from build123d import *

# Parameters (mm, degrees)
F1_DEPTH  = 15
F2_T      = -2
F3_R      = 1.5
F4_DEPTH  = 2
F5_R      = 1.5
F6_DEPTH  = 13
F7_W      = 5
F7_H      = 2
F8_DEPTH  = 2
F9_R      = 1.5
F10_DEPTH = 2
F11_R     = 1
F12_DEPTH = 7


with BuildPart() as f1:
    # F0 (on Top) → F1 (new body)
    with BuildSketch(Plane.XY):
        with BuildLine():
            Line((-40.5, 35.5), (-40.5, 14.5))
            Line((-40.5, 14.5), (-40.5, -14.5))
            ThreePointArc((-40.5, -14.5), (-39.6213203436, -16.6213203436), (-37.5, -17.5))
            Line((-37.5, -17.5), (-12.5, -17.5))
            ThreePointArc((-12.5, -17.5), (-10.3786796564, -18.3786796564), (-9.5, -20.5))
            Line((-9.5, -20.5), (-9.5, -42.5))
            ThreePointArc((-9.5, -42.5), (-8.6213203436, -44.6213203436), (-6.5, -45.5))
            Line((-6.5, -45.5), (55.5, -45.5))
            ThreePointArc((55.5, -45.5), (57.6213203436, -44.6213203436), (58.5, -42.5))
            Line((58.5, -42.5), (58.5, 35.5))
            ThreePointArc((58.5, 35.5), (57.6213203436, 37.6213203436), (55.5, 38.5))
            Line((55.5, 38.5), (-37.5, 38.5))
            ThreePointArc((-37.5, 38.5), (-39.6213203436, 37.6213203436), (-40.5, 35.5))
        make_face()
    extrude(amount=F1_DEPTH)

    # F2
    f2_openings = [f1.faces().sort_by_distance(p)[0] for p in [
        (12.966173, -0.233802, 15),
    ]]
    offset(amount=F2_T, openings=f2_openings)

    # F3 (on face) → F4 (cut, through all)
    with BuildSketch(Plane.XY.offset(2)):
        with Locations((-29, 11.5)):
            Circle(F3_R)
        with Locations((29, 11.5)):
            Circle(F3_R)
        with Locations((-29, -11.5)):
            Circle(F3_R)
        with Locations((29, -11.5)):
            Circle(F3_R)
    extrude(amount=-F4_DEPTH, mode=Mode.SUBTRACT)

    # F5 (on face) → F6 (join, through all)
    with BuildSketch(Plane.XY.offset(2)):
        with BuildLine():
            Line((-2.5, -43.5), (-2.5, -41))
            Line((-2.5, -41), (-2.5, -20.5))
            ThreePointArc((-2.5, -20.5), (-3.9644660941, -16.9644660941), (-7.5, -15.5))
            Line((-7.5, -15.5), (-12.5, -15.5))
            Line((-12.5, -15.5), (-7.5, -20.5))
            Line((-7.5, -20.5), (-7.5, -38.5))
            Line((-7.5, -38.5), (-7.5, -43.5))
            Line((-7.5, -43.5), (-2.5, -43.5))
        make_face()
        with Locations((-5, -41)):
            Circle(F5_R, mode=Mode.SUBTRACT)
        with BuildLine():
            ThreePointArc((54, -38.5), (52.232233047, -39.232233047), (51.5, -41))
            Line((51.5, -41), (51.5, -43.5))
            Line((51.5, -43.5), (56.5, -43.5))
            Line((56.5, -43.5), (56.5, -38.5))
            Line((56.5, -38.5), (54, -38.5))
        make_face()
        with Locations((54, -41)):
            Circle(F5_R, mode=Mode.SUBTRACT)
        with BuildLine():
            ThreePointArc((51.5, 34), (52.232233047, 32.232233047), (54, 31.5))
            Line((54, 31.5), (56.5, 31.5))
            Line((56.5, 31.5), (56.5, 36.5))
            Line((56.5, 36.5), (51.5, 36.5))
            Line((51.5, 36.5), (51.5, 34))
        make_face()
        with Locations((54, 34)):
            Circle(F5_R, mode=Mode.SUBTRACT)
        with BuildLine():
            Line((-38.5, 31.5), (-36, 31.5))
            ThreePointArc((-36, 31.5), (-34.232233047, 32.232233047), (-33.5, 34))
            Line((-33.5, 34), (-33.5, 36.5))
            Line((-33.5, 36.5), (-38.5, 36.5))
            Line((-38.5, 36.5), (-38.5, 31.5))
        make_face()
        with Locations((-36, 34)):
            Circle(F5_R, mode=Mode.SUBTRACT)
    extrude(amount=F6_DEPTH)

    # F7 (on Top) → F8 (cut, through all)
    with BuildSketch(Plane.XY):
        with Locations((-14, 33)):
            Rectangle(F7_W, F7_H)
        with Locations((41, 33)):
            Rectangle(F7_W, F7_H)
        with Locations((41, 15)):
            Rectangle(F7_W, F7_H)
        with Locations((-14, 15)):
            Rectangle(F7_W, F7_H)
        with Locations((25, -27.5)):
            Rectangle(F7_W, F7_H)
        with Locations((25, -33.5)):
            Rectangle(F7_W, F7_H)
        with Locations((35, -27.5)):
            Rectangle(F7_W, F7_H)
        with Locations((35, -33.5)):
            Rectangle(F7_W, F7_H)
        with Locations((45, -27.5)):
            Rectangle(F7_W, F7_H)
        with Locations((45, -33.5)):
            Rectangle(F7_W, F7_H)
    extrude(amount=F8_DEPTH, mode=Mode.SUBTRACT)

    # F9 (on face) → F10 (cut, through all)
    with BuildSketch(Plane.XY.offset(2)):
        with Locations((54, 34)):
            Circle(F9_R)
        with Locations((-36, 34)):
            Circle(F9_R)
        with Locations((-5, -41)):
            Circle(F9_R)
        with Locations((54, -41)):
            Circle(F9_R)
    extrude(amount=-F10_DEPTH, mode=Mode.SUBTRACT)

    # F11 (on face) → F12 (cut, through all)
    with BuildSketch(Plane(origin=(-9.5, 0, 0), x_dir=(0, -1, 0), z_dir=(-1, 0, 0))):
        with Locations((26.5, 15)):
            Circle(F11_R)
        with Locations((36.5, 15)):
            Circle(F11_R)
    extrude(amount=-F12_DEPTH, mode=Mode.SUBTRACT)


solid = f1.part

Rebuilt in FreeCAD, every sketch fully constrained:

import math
import FreeCAD as App
import Part
import Sketcher
from FreeCAD import Vector
Q = App.Units.Quantity


def faces_at(feature, points):
    """Names of the faces that lie closest to the given points."""
    faces = feature.Shape.Faces
    near = lambda p: min(range(len(faces)), key=lambda i: faces[i].distToShape(Part.Vertex(*p))[0])
    return sorted({f"Face{near(p) + 1}" for p in points})

doc = App.newDocument("Part")
body = doc.addObject("PartDesign::Body", "Body")

sketch1 = body.newObject("Sketcher::SketchObject", "Sketch")
sketch1.AttachmentSupport = (doc.getObject("XY_Plane"), [""])
sketch1.MapMode = "FlatFace"
sketch1.addGeometry([
    Part.LineSegment(Vector(-40.5, 35.5, 0), Vector(-40.5, -14.5, 0)),
    Part.ArcOfCircle(Part.Circle(Vector(-37.5, -14.5, 0), Vector(0, 0, 1), 3), math.radians(180), math.radians(270)),
    Part.LineSegment(Vector(-37.5, -17.5, 0), Vector(-12.5, -17.5, 0)),
    Part.ArcOfCircle(Part.Circle(Vector(-12.5, -20.5, 0), Vector(0, 0, 1), 3), math.radians(0), math.radians(90)),
    Part.LineSegment(Vector(-9.5, -20.5, 0), Vector(-9.5, -42.5, 0)),
    Part.ArcOfCircle(Part.Circle(Vector(-6.5, -42.5, 0), Vector(0, 0, 1), 3), math.radians(180), math.radians(270)),
    Part.LineSegment(Vector(-6.5, -45.5, 0), Vector(55.5, -45.5, 0)),
    Part.ArcOfCircle(Part.Circle(Vector(55.5, -42.5, 0), Vector(0, 0, 1), 3), math.radians(-90), math.radians(0)),
    Part.LineSegment(Vector(58.5, -42.5, 0), Vector(58.5, 35.5, 0)),
    Part.ArcOfCircle(Part.Circle(Vector(55.5, 35.5, 0), Vector(0, 0, 1), 3), math.radians(0), math.radians(90)),
    Part.LineSegment(Vector(55.5, 38.5, 0), Vector(-37.5, 38.5, 0)),
    Part.ArcOfCircle(Part.Circle(Vector(-37.5, 35.5, 0), Vector(0, 0, 1), 3), math.radians(90), math.radians(180)),
], False)
sketch1.addConstraint([
    Sketcher.Constraint("Tangent", 0, 2, 1, 1),
    Sketcher.Constraint("Tangent", 1, 2, 2, 1),
    Sketcher.Constraint("Tangent", 2, 2, 3, 2),
    Sketcher.Constraint("Tangent", 3, 1, 4, 1),
    Sketcher.Constraint("Tangent", 4, 2, 5, 1),
    Sketcher.Constraint("Tangent", 5, 2, 6, 1),
    Sketcher.Constraint("Tangent", 6, 2, 7, 1),
    Sketcher.Constraint("Tangent", 7, 2, 8, 1),
    Sketcher.Constraint("Tangent", 8, 2, 9, 1),
    Sketcher.Constraint("Tangent", 9, 2, 10, 1),
    Sketcher.Constraint("Tangent", 10, 2, 11, 1),
    Sketcher.Constraint("Tangent", 11, 2, 0, 1),
    Sketcher.Constraint("Vertical", 0),
    Sketcher.Constraint("Horizontal", 2),
    Sketcher.Constraint("Vertical", 4),
    Sketcher.Constraint("Horizontal", 6),
    Sketcher.Constraint("Vertical", 8),
    Sketcher.Constraint("Horizontal", 10),
    Sketcher.Constraint("Equal", 1, 3),
    Sketcher.Constraint("Equal", 3, 5),
    Sketcher.Constraint("Equal", 5, 7),
    Sketcher.Constraint("Equal", 7, 9),
    Sketcher.Constraint("Equal", 9, 11),
    Sketcher.Constraint("Radius", 1, Q("3 mm")),
    Sketcher.Constraint("DistanceX", 2, 1, 2, 2, Q("25 mm")),
    Sketcher.Constraint("DistanceX", 6, 1, 6, 2, Q("62 mm")),
    Sketcher.Constraint("DistanceY", 0, 2, 0, 1, Q("50 mm")),
    Sketcher.Constraint("DistanceY", 4, 2, 4, 1, Q("22 mm")),
    Sketcher.Constraint("DistanceX", 1, 3, -1, 1, Q("37.5 mm")),
    Sketcher.Constraint("DistanceY", 1, 3, -1, 1, Q("14.5 mm")),
])
pad1 = body.newObject("PartDesign::Pad", "Pad")
pad1.Profile = sketch1
pad1.Length = 15
doc.recompute()

thickness = body.newObject("PartDesign::Thickness", "Thickness")
thickness.Base = (pad1, faces_at(pad1, [(9, -3.5, 15)]))
thickness.Value = 2
thickness.Reversed = True
thickness.Join = "Arc"

sketch2 = body.newObject("Sketcher::SketchObject", "Sketch001")
sketch2.AttachmentSupport = (doc.getObject("XY_Plane"), [""])
sketch2.MapMode = "FlatFace"
sketch2.AttachmentOffset = App.Placement(Vector(0, 0, 2), App.Rotation())
sketch2.addGeometry([
    Part.Circle(Vector(-29, 11.5, 0), Vector(0, 0, 1), 1.5),
    Part.Circle(Vector(29, 11.5, 0), Vector(0, 0, 1), 1.5),
    Part.Circle(Vector(-29, -11.5, 0), Vector(0, 0, 1), 1.5),
    Part.Circle(Vector(29, -11.5, 0), Vector(0, 0, 1), 1.5),
], False)
sketch2.addConstraint([
    Sketcher.Constraint("Equal", 0, 1),
    Sketcher.Constraint("Equal", 1, 2),
    Sketcher.Constraint("Equal", 2, 3),
    Sketcher.Constraint("Symmetric", 1, 3, 2, 3, -1, 1),
    Sketcher.Constraint("Symmetric", 0, 3, 3, 3, -1, 1),
    Sketcher.Constraint("Symmetric", 0, 3, 1, 3, -2),
    Sketcher.Constraint("Diameter", 0, Q("3 mm")),
    Sketcher.Constraint("DistanceX", 0, 3, -1, 1, Q("29 mm")),
    Sketcher.Constraint("DistanceY", 2, 3, 0, 3, Q("23 mm")),
])
pocket1 = body.newObject("PartDesign::Pocket", "Pocket")
pocket1.Profile = sketch2
pocket1.Type = "ThroughAll"

sketch3 = body.newObject("Sketcher::SketchObject", "Sketch002")
sketch3.AttachmentSupport = (doc.getObject("XY_Plane"), [""])
sketch3.MapMode = "FlatFace"
sketch3.AttachmentOffset = App.Placement(Vector(0, 0, 2), App.Rotation())
sketch3.addGeometry([
    Part.LineSegment(Vector(-2.5, -43.5, 0), Vector(-2.5, -20.5, 0)),
    Part.ArcOfCircle(Part.Circle(Vector(-7.5, -20.5, 0), Vector(0, 0, 1), 5), math.radians(0), math.radians(90)),
    Part.LineSegment(Vector(-7.5, -15.5, 0), Vector(-12.5, -15.5, 0)),
    Part.LineSegment(Vector(-12.5, -15.5, 0), Vector(-7.5, -20.5, 0)),
    Part.LineSegment(Vector(-7.5, -20.5, 0), Vector(-7.5, -43.5, 0)),
    Part.LineSegment(Vector(-7.5, -43.5, 0), Vector(-2.5, -43.5, 0)),
    Part.Circle(Vector(-5, -41, 0), Vector(0, 0, 1), 1.5),
    Part.ArcOfCircle(Part.Circle(Vector(54, -41, 0), Vector(0, 0, 1), 2.5), math.radians(90), math.radians(180)),
    Part.LineSegment(Vector(51.5, -41, 0), Vector(51.5, -43.5, 0)),
    Part.LineSegment(Vector(51.5, -43.5, 0), Vector(56.5, -43.5, 0)),
    Part.LineSegment(Vector(56.5, -43.5, 0), Vector(56.5, -38.5, 0)),
    Part.LineSegment(Vector(56.5, -38.5, 0), Vector(54, -38.5, 0)),
    Part.Circle(Vector(54, -41, 0), Vector(0, 0, 1), 1.5),
    Part.ArcOfCircle(Part.Circle(Vector(54, 34, 0), Vector(0, 0, 1), 2.5), math.radians(180), math.radians(270)),
    Part.LineSegment(Vector(54, 31.5, 0), Vector(56.5, 31.5, 0)),
    Part.LineSegment(Vector(56.5, 31.5, 0), Vector(56.5, 36.5, 0)),
    Part.LineSegment(Vector(56.5, 36.5, 0), Vector(51.5, 36.5, 0)),
    Part.LineSegment(Vector(51.5, 36.5, 0), Vector(51.5, 34, 0)),
    Part.Circle(Vector(54, 34, 0), Vector(0, 0, 1), 1.5),
    Part.LineSegment(Vector(-38.5, 31.5, 0), Vector(-36, 31.5, 0)),
    Part.ArcOfCircle(Part.Circle(Vector(-36, 34, 0), Vector(0, 0, 1), 2.5), math.radians(-90), math.radians(0)),
    Part.LineSegment(Vector(-33.5, 34, 0), Vector(-33.5, 36.5, 0)),
    Part.LineSegment(Vector(-33.5, 36.5, 0), Vector(-38.5, 36.5, 0)),
    Part.LineSegment(Vector(-38.5, 36.5, 0), Vector(-38.5, 31.5, 0)),
    Part.Circle(Vector(-36, 34, 0), Vector(0, 0, 1), 1.5),
], False)
sketch3.addConstraint([
    Sketcher.Constraint("Tangent", 0, 2, 1, 1),
    Sketcher.Constraint("Tangent", 1, 2, 2, 1),
    Sketcher.Constraint("Coincident", 2, 2, 3, 1),
    Sketcher.Constraint("Coincident", 3, 2, 4, 1),
    Sketcher.Constraint("Coincident", 4, 2, 5, 1),
    Sketcher.Constraint("Coincident", 5, 2, 0, 1),
    Sketcher.Constraint("Tangent", 7, 2, 8, 1),
    Sketcher.Constraint("Coincident", 8, 2, 9, 1),
    Sketcher.Constraint("Coincident", 9, 2, 10, 1),
    Sketcher.Constraint("Coincident", 10, 2, 11, 1),
    Sketcher.Constraint("Tangent", 11, 2, 7, 1),
    Sketcher.Constraint("Tangent", 13, 2, 14, 1),
    Sketcher.Constraint("Coincident", 14, 2, 15, 1),
    Sketcher.Constraint("Coincident", 15, 2, 16, 1),
    Sketcher.Constraint("Coincident", 16, 2, 17, 1),
    Sketcher.Constraint("Tangent", 17, 2, 13, 1),
    Sketcher.Constraint("Tangent", 19, 2, 20, 1),
    Sketcher.Constraint("Tangent", 20, 2, 21, 1),
    Sketcher.Constraint("Coincident", 21, 2, 22, 1),
    Sketcher.Constraint("Coincident", 22, 2, 23, 1),
    Sketcher.Constraint("Coincident", 23, 2, 19, 1),
    Sketcher.Constraint("Vertical", 0),
    Sketcher.Constraint("Horizontal", 2),
    Sketcher.Constraint("Vertical", 4),
    Sketcher.Constraint("Horizontal", 5),
    Sketcher.Constraint("Vertical", 8),
    Sketcher.Constraint("Horizontal", 9),
    Sketcher.Constraint("Vertical", 10),
    Sketcher.Constraint("Horizontal", 11),
    Sketcher.Constraint("Horizontal", 14),
    Sketcher.Constraint("Vertical", 15),
    Sketcher.Constraint("Horizontal", 16),
    Sketcher.Constraint("Vertical", 17),
    Sketcher.Constraint("Horizontal", 19),
    Sketcher.Constraint("Vertical", 21),
    Sketcher.Constraint("Horizontal", 22),
    Sketcher.Constraint("Vertical", 23),
    Sketcher.Constraint("Coincident", 12, 3, 7, 3),
    Sketcher.Constraint("Coincident", 18, 3, 13, 3),
    Sketcher.Constraint("Coincident", 24, 3, 20, 3),
    Sketcher.Constraint("Coincident", 3, 2, 1, 3),
    Sketcher.Constraint("Equal", 6, 12),
    Sketcher.Constraint("Equal", 7, 13),
    Sketcher.Constraint("Equal", 12, 18),
    Sketcher.Constraint("Equal", 13, 20),
    Sketcher.Constraint("Equal", 18, 24),
    Sketcher.Constraint("Horizontal", 6, 3, 7, 3),
    Sketcher.Constraint("Horizontal", 18, 3, 20, 3),
    Sketcher.Constraint("Horizontal", 5, 2, 8, 2),
    Sketcher.Constraint("Horizontal", 16, 2, 21, 2),
    Sketcher.Constraint("Vertical", 12, 3, 13, 3),
    Sketcher.Constraint("Vertical", 10, 2, 14, 2),
    Sketcher.Constraint("Equal", 2, 5),
    Sketcher.Constraint("Equal", 5, 9),
    Sketcher.Constraint("Equal", 14, 19),
    Sketcher.Constraint("Equal", 19, 8),
    Sketcher.Constraint("Equal", 10, 15),
    Sketcher.Constraint("Diameter", 6, Q("3 mm")),
    Sketcher.Constraint("Radius", 1, Q("5 mm")),
    Sketcher.Constraint("Radius", 7, Q("2.5 mm")),
    Sketcher.Constraint("DistanceY", 0, 1, 0, 2, Q("23 mm")),
    Sketcher.Constraint("DistanceX", 6, 3, -1, 1, Q("5 mm")),
    Sketcher.Constraint("DistanceY", 6, 3, -1, 1, Q("41 mm")),
    Sketcher.Constraint("DistanceX", -1, 1, 7, 3, Q("54 mm")),
    Sketcher.Constraint("DistanceY", -1, 1, 13, 3, Q("34 mm")),
    Sketcher.Constraint("DistanceX", 20, 3, -1, 1, Q("36 mm")),
    Sketcher.Constraint("DistanceX", 5, 2, 7, 2, Q("54 mm")),
])
pad2 = body.newObject("PartDesign::Pad", "Pad001")
pad2.Profile = sketch3
pad2.Length = 13

sketch4 = body.newObject("Sketcher::SketchObject", "Sketch003")
sketch4.AttachmentSupport = (doc.getObject("XY_Plane"), [""])
sketch4.MapMode = "FlatFace"
sketch4.addGeometry([
    Part.LineSegment(Vector(-16.5, 34, 0), Vector(-16.5, 32, 0)),
    Part.LineSegment(Vector(-16.5, 32, 0), Vector(-11.5, 32, 0)),
    Part.LineSegment(Vector(-11.5, 32, 0), Vector(-11.5, 34, 0)),
    Part.LineSegment(Vector(-11.5, 34, 0), Vector(-16.5, 34, 0)),
    Part.LineSegment(Vector(38.5, 34, 0), Vector(38.5, 32, 0)),
    Part.LineSegment(Vector(38.5, 32, 0), Vector(43.5, 32, 0)),
    Part.LineSegment(Vector(43.5, 32, 0), Vector(43.5, 34, 0)),
    Part.LineSegment(Vector(43.5, 34, 0), Vector(38.5, 34, 0)),
    Part.LineSegment(Vector(38.5, 16, 0), Vector(38.5, 14, 0)),
    Part.LineSegment(Vector(38.5, 14, 0), Vector(43.5, 14, 0)),
    Part.LineSegment(Vector(43.5, 14, 0), Vector(43.5, 16, 0)),
    Part.LineSegment(Vector(43.5, 16, 0), Vector(38.5, 16, 0)),
    Part.LineSegment(Vector(-16.5, 16, 0), Vector(-16.5, 14, 0)),
    Part.LineSegment(Vector(-16.5, 14, 0), Vector(-11.5, 14, 0)),
    Part.LineSegment(Vector(-11.5, 14, 0), Vector(-11.5, 16, 0)),
    Part.LineSegment(Vector(-11.5, 16, 0), Vector(-16.5, 16, 0)),
    Part.LineSegment(Vector(22.5, -26.5, 0), Vector(22.5, -28.5, 0)),
    Part.LineSegment(Vector(22.5, -28.5, 0), Vector(27.5, -28.5, 0)),
    Part.LineSegment(Vector(27.5, -28.5, 0), Vector(27.5, -26.5, 0)),
    Part.LineSegment(Vector(27.5, -26.5, 0), Vector(22.5, -26.5, 0)),
    Part.LineSegment(Vector(22.5, -32.5, 0), Vector(22.5, -34.5, 0)),
    Part.LineSegment(Vector(22.5, -34.5, 0), Vector(27.5, -34.5, 0)),
    Part.LineSegment(Vector(27.5, -34.5, 0), Vector(27.5, -32.5, 0)),
    Part.LineSegment(Vector(27.5, -32.5, 0), Vector(22.5, -32.5, 0)),
    Part.LineSegment(Vector(32.5, -26.5, 0), Vector(32.5, -28.5, 0)),
    Part.LineSegment(Vector(32.5, -28.5, 0), Vector(37.5, -28.5, 0)),
    Part.LineSegment(Vector(37.5, -28.5, 0), Vector(37.5, -26.5, 0)),
    Part.LineSegment(Vector(37.5, -26.5, 0), Vector(32.5, -26.5, 0)),
    Part.LineSegment(Vector(32.5, -32.5, 0), Vector(32.5, -34.5, 0)),
    Part.LineSegment(Vector(32.5, -34.5, 0), Vector(37.5, -34.5, 0)),
    Part.LineSegment(Vector(37.5, -34.5, 0), Vector(37.5, -32.5, 0)),
    Part.LineSegment(Vector(37.5, -32.5, 0), Vector(32.5, -32.5, 0)),
    Part.LineSegment(Vector(42.5, -26.5, 0), Vector(42.5, -28.5, 0)),
    Part.LineSegment(Vector(42.5, -28.5, 0), Vector(47.5, -28.5, 0)),
    Part.LineSegment(Vector(47.5, -28.5, 0), Vector(47.5, -26.5, 0)),
    Part.LineSegment(Vector(47.5, -26.5, 0), Vector(42.5, -26.5, 0)),
    Part.LineSegment(Vector(42.5, -32.5, 0), Vector(42.5, -34.5, 0)),
    Part.LineSegment(Vector(42.5, -34.5, 0), Vector(47.5, -34.5, 0)),
    Part.LineSegment(Vector(47.5, -34.5, 0), Vector(47.5, -32.5, 0)),
    Part.LineSegment(Vector(47.5, -32.5, 0), Vector(42.5, -32.5, 0)),
], False)
sketch4.addConstraint([
    Sketcher.Constraint("Coincident", 0, 2, 1, 1),
    Sketcher.Constraint("Coincident", 1, 2, 2, 1),
    Sketcher.Constraint("Coincident", 2, 2, 3, 1),
    Sketcher.Constraint("Coincident", 3, 2, 0, 1),
    Sketcher.Constraint("Coincident", 4, 2, 5, 1),
    Sketcher.Constraint("Coincident", 5, 2, 6, 1),
    Sketcher.Constraint("Coincident", 6, 2, 7, 1),
    Sketcher.Constraint("Coincident", 7, 2, 4, 1),
    Sketcher.Constraint("Coincident", 8, 2, 9, 1),
    Sketcher.Constraint("Coincident", 9, 2, 10, 1),
    Sketcher.Constraint("Coincident", 10, 2, 11, 1),
    Sketcher.Constraint("Coincident", 11, 2, 8, 1),
    Sketcher.Constraint("Coincident", 12, 2, 13, 1),
    Sketcher.Constraint("Coincident", 13, 2, 14, 1),
    Sketcher.Constraint("Coincident", 14, 2, 15, 1),
    Sketcher.Constraint("Coincident", 15, 2, 12, 1),
    Sketcher.Constraint("Coincident", 16, 2, 17, 1),
    Sketcher.Constraint("Coincident", 17, 2, 18, 1),
    Sketcher.Constraint("Coincident", 18, 2, 19, 1),
    Sketcher.Constraint("Coincident", 19, 2, 16, 1),
    Sketcher.Constraint("Coincident", 20, 2, 21, 1),
    Sketcher.Constraint("Coincident", 21, 2, 22, 1),
    Sketcher.Constraint("Coincident", 22, 2, 23, 1),
    Sketcher.Constraint("Coincident", 23, 2, 20, 1),
    Sketcher.Constraint("Coincident", 24, 2, 25, 1),
    Sketcher.Constraint("Coincident", 25, 2, 26, 1),
    Sketcher.Constraint("Coincident", 26, 2, 27, 1),
    Sketcher.Constraint("Coincident", 27, 2, 24, 1),
    Sketcher.Constraint("Coincident", 28, 2, 29, 1),
    Sketcher.Constraint("Coincident", 29, 2, 30, 1),
    Sketcher.Constraint("Coincident", 30, 2, 31, 1),
    Sketcher.Constraint("Coincident", 31, 2, 28, 1),
    Sketcher.Constraint("Coincident", 32, 2, 33, 1),
    Sketcher.Constraint("Coincident", 33, 2, 34, 1),
    Sketcher.Constraint("Coincident", 34, 2, 35, 1),
    Sketcher.Constraint("Coincident", 35, 2, 32, 1),
    Sketcher.Constraint("Coincident", 36, 2, 37, 1),
    Sketcher.Constraint("Coincident", 37, 2, 38, 1),
    Sketcher.Constraint("Coincident", 38, 2, 39, 1),
    Sketcher.Constraint("Coincident", 39, 2, 36, 1),
    Sketcher.Constraint("Vertical", 0),
    Sketcher.Constraint("Horizontal", 1),
    Sketcher.Constraint("Vertical", 2),
    Sketcher.Constraint("Horizontal", 3),
    Sketcher.Constraint("Vertical", 4),
    Sketcher.Constraint("Horizontal", 5),
    Sketcher.Constraint("Vertical", 6),
    Sketcher.Constraint("Horizontal", 7),
    Sketcher.Constraint("Vertical", 8),
    Sketcher.Constraint("Horizontal", 9),
    Sketcher.Constraint("Vertical", 10),
    Sketcher.Constraint("Horizontal", 11),
    Sketcher.Constraint("Vertical", 12),
    Sketcher.Constraint("Horizontal", 13),
    Sketcher.Constraint("Vertical", 14),
    Sketcher.Constraint("Horizontal", 15),
    Sketcher.Constraint("Vertical", 16),
    Sketcher.Constraint("Horizontal", 17),
    Sketcher.Constraint("Vertical", 18),
    Sketcher.Constraint("Horizontal", 19),
    Sketcher.Constraint("Vertical", 20),
    Sketcher.Constraint("Horizontal", 21),
    Sketcher.Constraint("Vertical", 22),
    Sketcher.Constraint("Horizontal", 23),
    Sketcher.Constraint("Vertical", 24),
    Sketcher.Constraint("Horizontal", 25),
    Sketcher.Constraint("Vertical", 26),
    Sketcher.Constraint("Horizontal", 27),
    Sketcher.Constraint("Vertical", 28),
    Sketcher.Constraint("Horizontal", 29),
    Sketcher.Constraint("Vertical", 30),
    Sketcher.Constraint("Horizontal", 31),
    Sketcher.Constraint("Vertical", 32),
    Sketcher.Constraint("Horizontal", 33),
    Sketcher.Constraint("Vertical", 34),
    Sketcher.Constraint("Horizontal", 35),
    Sketcher.Constraint("Vertical", 36),
    Sketcher.Constraint("Horizontal", 37),
    Sketcher.Constraint("Vertical", 38),
    Sketcher.Constraint("Horizontal", 39),
    Sketcher.Constraint("Horizontal", 1, 2, 4, 2),
    Sketcher.Constraint("Horizontal", 3, 2, 6, 2),
    Sketcher.Constraint("Horizontal", 9, 2, 12, 2),
    Sketcher.Constraint("Horizontal", 11, 2, 14, 2),
    Sketcher.Constraint("Horizontal", 17, 2, 24, 2),
    Sketcher.Constraint("Horizontal", 19, 2, 26, 2),
    Sketcher.Constraint("Horizontal", 21, 2, 28, 2),
    Sketcher.Constraint("Horizontal", 23, 2, 30, 2),
    Sketcher.Constraint("Horizontal", 25, 2, 32, 2),
    Sketcher.Constraint("Horizontal", 27, 2, 34, 2),
    Sketcher.Constraint("Horizontal", 29, 2, 36, 2),
    Sketcher.Constraint("Horizontal", 31, 2, 38, 2),
    Sketcher.Constraint("Vertical", 7, 2, 8, 2),
    Sketcher.Constraint("Vertical", 6, 2, 9, 2),
    Sketcher.Constraint("Vertical", 3, 2, 12, 2),
    Sketcher.Constraint("Vertical", 2, 2, 13, 2),
    Sketcher.Constraint("Vertical", 19, 2, 20, 2),
    Sketcher.Constraint("Vertical", 18, 2, 21, 2),
    Sketcher.Constraint("Vertical", 27, 2, 28, 2),
    Sketcher.Constraint("Vertical", 26, 2, 29, 2),
    Sketcher.Constraint("Vertical", 35, 2, 36, 2),
    Sketcher.Constraint("Vertical", 34, 2, 37, 2),
    Sketcher.Constraint("Equal", 3, 5),
    Sketcher.Constraint("Equal", 15, 17),
    Sketcher.Constraint("Equal", 23, 25),
    Sketcher.Constraint("Equal", 31, 33),
    Sketcher.Constraint("Equal", 6, 8),
    Sketcher.Constraint("Equal", 14, 16),
    Sketcher.Constraint("Equal", 18, 20),
    Sketcher.Constraint("DistanceX", 1, 1, 1, 2, Q("5 mm")),
    Sketcher.Constraint("DistanceY", 0, 2, 0, 1, Q("2 mm")),
    Sketcher.Constraint("DistanceY", -1, 1, 0, 2, Q("32 mm")),
    Sketcher.Constraint("DistanceY", -1, 1, 8, 2, Q("14 mm")),
    Sketcher.Constraint("DistanceX", 1, 2, 4, 2, Q("50 mm")),
    Sketcher.Constraint("DistanceX", 16, 2, 8, 2, Q("16 mm")),
    Sketcher.Constraint("DistanceY", 20, 2, 16, 2, Q("6 mm")),
    Sketcher.Constraint("DistanceX", 17, 2, 24, 2, Q("5 mm")),
    Sketcher.Constraint("DistanceX", 25, 2, 32, 2, Q("5 mm")),
    Sketcher.Constraint("DistanceX", 0, 2, -1, 1, Q("16.5 mm")),
    Sketcher.Constraint("DistanceY", 16, 2, -1, 1, Q("28.5 mm")),
])
pocket2 = body.newObject("PartDesign::Pocket", "Pocket001")
pocket2.Profile = sketch4
pocket2.Type = "ThroughAll"
pocket2.Reversed = True

sketch5 = body.newObject("Sketcher::SketchObject", "Sketch004")
sketch5.AttachmentSupport = (doc.getObject("XY_Plane"), [""])
sketch5.MapMode = "FlatFace"
sketch5.AttachmentOffset = App.Placement(Vector(0, 0, 2), App.Rotation())
sketch5.addGeometry([
    Part.Circle(Vector(54, 34, 0), Vector(0, 0, 1), 1.5),
    Part.Circle(Vector(-36, 34, 0), Vector(0, 0, 1), 1.5),
    Part.Circle(Vector(-5, -41, 0), Vector(0, 0, 1), 1.5),
    Part.Circle(Vector(54, -41, 0), Vector(0, 0, 1), 1.5),
], False)
sketch5.addConstraint([
    Sketcher.Constraint("Equal", 0, 1),
    Sketcher.Constraint("Equal", 1, 2),
    Sketcher.Constraint("Equal", 2, 3),
    Sketcher.Constraint("Horizontal", 0, 3, 1, 3),
    Sketcher.Constraint("Horizontal", 2, 3, 3, 3),
    Sketcher.Constraint("Vertical", 0, 3, 3, 3),
    Sketcher.Constraint("Diameter", 0, Q("3 mm")),
    Sketcher.Constraint("DistanceX", -1, 1, 0, 3, Q("54 mm")),
    Sketcher.Constraint("DistanceY", -1, 1, 0, 3, Q("34 mm")),
    Sketcher.Constraint("DistanceX", 1, 3, -1, 1, Q("36 mm")),
    Sketcher.Constraint("DistanceX", 2, 3, -1, 1, Q("5 mm")),
    Sketcher.Constraint("DistanceY", 2, 3, -1, 1, Q("41 mm")),
])
pocket3 = body.newObject("PartDesign::Pocket", "Pocket002")
pocket3.Profile = sketch5
pocket3.Type = "ThroughAll"

sketch6 = body.newObject("Sketcher::SketchObject", "Sketch005")
sketch6.AttachmentSupport = (doc.getObject("YZ_Plane"), [""])
sketch6.MapMode = "FlatFace"
sketch6.AttachmentOffset = App.Placement(Vector(0, 0, -9.5), App.Rotation())
sketch6.addGeometry([
    Part.Circle(Vector(-26.5, 15, 0), Vector(0, 0, 1), 1),
    Part.Circle(Vector(-36.5, 15, 0), Vector(0, 0, 1), 1),
], False)
sketch6.addConstraint([
    Sketcher.Constraint("Equal", 0, 1),
    Sketcher.Constraint("Horizontal", 0, 3, 1, 3),
    Sketcher.Constraint("Diameter", 0, Q("2 mm")),
    Sketcher.Constraint("DistanceY", -1, 1, 0, 3, Q("15 mm")),
    Sketcher.Constraint("DistanceX", 1, 3, 0, 3, Q("10 mm")),
    Sketcher.Constraint("DistanceX", 0, 3, -1, 1, Q("26.5 mm")),
])
pocket4 = body.newObject("PartDesign::Pocket", "Pocket003")
pocket4.Profile = sketch6
pocket4.Length = 7
pocket4.Reversed = True

doc.recompute()
